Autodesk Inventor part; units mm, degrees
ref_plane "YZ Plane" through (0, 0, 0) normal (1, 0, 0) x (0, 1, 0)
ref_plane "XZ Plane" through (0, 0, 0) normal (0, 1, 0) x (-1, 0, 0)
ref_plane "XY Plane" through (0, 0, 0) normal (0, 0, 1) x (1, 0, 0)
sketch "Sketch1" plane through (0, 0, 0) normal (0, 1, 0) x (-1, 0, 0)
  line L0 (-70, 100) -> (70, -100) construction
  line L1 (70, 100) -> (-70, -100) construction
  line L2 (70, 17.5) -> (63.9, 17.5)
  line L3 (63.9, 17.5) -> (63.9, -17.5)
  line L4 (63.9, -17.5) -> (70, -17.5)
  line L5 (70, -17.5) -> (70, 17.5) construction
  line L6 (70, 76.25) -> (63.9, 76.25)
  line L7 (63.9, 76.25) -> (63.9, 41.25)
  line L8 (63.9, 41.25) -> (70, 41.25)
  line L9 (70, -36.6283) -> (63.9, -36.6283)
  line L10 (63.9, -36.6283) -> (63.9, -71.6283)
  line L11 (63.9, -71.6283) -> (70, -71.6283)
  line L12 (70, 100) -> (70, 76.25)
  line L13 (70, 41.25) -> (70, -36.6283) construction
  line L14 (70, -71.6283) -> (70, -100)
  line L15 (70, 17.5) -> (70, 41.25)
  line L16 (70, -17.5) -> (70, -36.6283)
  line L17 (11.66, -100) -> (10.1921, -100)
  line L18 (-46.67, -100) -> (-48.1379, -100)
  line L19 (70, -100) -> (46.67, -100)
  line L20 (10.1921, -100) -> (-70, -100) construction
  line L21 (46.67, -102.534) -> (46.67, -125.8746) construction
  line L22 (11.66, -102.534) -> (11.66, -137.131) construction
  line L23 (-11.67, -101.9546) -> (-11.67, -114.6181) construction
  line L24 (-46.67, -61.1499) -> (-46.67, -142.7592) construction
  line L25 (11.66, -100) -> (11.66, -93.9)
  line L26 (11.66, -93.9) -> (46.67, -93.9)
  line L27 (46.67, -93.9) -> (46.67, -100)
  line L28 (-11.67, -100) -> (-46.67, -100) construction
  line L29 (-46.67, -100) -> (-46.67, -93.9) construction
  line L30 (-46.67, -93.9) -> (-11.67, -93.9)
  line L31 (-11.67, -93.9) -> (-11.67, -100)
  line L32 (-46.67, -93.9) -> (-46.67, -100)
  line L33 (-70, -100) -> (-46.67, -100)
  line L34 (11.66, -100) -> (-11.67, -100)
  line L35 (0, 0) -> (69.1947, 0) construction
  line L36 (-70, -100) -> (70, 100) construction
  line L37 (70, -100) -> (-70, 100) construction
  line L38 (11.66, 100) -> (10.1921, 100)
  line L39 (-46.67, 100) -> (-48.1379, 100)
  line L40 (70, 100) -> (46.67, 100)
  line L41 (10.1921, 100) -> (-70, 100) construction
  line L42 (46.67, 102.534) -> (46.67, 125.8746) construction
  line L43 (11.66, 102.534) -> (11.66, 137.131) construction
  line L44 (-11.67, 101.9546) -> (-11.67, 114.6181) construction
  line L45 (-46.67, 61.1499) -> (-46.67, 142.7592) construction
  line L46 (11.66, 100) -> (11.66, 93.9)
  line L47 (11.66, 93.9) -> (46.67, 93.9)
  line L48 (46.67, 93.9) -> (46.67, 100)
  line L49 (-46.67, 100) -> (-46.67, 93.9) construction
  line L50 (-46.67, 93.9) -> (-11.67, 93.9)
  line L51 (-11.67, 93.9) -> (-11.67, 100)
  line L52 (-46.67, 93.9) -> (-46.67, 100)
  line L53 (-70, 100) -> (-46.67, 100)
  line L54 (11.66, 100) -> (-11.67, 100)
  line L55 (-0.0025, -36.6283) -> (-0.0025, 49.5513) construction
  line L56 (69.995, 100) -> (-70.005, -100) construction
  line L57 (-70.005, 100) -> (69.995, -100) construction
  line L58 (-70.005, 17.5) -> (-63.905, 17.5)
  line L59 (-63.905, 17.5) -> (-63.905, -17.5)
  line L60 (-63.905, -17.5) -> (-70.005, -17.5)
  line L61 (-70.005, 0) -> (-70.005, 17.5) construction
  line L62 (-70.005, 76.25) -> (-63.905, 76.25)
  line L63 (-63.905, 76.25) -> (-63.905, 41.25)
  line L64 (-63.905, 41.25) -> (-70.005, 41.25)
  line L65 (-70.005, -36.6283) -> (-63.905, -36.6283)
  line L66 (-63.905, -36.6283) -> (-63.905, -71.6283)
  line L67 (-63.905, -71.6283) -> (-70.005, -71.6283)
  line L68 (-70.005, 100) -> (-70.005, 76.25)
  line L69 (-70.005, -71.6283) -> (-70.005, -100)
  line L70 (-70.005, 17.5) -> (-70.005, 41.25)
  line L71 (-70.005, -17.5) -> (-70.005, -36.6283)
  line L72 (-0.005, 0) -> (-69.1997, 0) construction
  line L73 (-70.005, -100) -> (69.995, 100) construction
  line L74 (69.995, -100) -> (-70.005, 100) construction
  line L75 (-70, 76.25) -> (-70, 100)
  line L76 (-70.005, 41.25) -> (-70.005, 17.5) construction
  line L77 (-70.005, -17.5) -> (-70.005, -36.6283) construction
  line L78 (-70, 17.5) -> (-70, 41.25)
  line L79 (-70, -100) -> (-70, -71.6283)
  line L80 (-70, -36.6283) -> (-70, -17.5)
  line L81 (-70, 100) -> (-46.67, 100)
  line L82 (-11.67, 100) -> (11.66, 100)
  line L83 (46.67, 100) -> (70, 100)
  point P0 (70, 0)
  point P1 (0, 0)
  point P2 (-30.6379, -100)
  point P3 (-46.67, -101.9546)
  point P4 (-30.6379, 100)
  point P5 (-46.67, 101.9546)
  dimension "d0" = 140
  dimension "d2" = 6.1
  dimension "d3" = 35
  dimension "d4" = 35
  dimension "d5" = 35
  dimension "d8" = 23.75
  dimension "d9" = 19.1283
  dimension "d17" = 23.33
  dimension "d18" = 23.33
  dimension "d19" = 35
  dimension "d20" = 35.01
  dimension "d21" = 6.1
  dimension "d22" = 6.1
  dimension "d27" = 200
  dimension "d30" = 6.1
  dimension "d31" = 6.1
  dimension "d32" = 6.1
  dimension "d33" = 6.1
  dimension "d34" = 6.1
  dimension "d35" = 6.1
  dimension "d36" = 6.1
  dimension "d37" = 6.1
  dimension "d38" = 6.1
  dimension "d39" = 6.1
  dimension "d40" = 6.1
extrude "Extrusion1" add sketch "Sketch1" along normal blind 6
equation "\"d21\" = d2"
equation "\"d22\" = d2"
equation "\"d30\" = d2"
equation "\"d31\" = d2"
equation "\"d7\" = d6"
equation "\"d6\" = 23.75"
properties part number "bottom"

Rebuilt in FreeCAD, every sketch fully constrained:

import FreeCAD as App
import Part
import Sketcher

V = App.Vector


def add_polygon(sketch, points):
    """Adds a closed chain of lines whose ends are joined by coincident constraints."""
    first, n = sketch.GeometryCount, len(points)
    for a, b in zip(points, points[1:] + points[:1]):
        sketch.addGeometry(Part.LineSegment(App.Vector(*a, 0), App.Vector(*b, 0)), False)
    for i in range(n):
        sketch.addConstraint(Sketcher.Constraint("Coincident", first + i, 2, first + (i + 1) % n, 1))

doc = App.newDocument("Part")
body = doc.addObject("PartDesign::Body", "Body")

# Sketch on XZ plane
sketch1 = doc.addObject("Sketcher::SketchObject", "Sketch")
body.addObject(sketch1)
sketch1.AttachmentSupport = (doc.XZ_Plane, [""])
sketch1.MapMode = "FlatFace"
add_polygon(sketch1, [(-64, 18), (-70, 18), (-70, 41), (-64, 41), (-64, 76), (-70, 76), (-70, 100), (-47, 100), (-47, 94), (-12, 94), (-12, 100), (12, 100), (12, 94), (47, 94), (47, 100), (70, 100), (70, 76), (64, 76), (64, 41), (70, 41), (70, 18), (64, 18), (64, -18), (70, -18), (70, -37), (64, -37), (64, -72), (70, -72), (70, -100), (47, -100), (47, -94), (12, -94), (12, -100), (-12, -100), (-12, -94), (-47, -94), (-47, -100), (-70, -100), (-70, -72), (-64, -72), (-64, -37), (-70, -37), (-70, -18), (-64, -18)])  # lines 0-43
sketch1.addConstraint([
    Sketcher.Constraint("Horizontal", 0),
    Sketcher.Constraint("Vertical", 1),
    Sketcher.Constraint("Horizontal", 2),
    Sketcher.Constraint("Vertical", 3),
    Sketcher.Constraint("Horizontal", 4),
    Sketcher.Constraint("Vertical", 5),
    Sketcher.Constraint("Horizontal", 6),
    Sketcher.Constraint("Vertical", 7),
    Sketcher.Constraint("Horizontal", 8),
    Sketcher.Constraint("Vertical", 9),
    Sketcher.Constraint("Horizontal", 10),
    Sketcher.Constraint("Vertical", 11),
    Sketcher.Constraint("Horizontal", 12),
    Sketcher.Constraint("Vertical", 13),
    Sketcher.Constraint("Horizontal", 14),
    Sketcher.Constraint("Vertical", 15),
    Sketcher.Constraint("Horizontal", 16),
    Sketcher.Constraint("Vertical", 17),
    Sketcher.Constraint("Horizontal", 18),
    Sketcher.Constraint("Vertical", 19),
    Sketcher.Constraint("Horizontal", 20),
    Sketcher.Constraint("Vertical", 21),
    Sketcher.Constraint("Horizontal", 22),
    Sketcher.Constraint("Vertical", 23),
    Sketcher.Constraint("Horizontal", 24),
    Sketcher.Constraint("Vertical", 25),
    Sketcher.Constraint("Horizontal", 26),
    Sketcher.Constraint("Vertical", 27),
    Sketcher.Constraint("Horizontal", 28),
    Sketcher.Constraint("Vertical", 29),
    Sketcher.Constraint("Horizontal", 30),
    Sketcher.Constraint("Vertical", 31),
    Sketcher.Constraint("Horizontal", 32),
    Sketcher.Constraint("Vertical", 33),
    Sketcher.Constraint("Horizontal", 34),
    Sketcher.Constraint("Vertical", 35),
    Sketcher.Constraint("Horizontal", 36),
    Sketcher.Constraint("Vertical", 37),
    Sketcher.Constraint("Horizontal", 38),
    Sketcher.Constraint("Vertical", 39),
    Sketcher.Constraint("Horizontal", 40),
    Sketcher.Constraint("Vertical", 41),
    Sketcher.Constraint("Horizontal", 42),
    Sketcher.Constraint("Vertical", 43),
    Sketcher.Constraint("Symmetric", 5, 2, 27, 2, -1, 1),
    Sketcher.Constraint("Symmetric", 7, 2, 29, 2, -1, 1),
    Sketcher.Constraint("Symmetric", 12, 2, 34, 2, -1, 1),
    Sketcher.Constraint("Symmetric", 14, 2, 36, 2, -1, 1),
    Sketcher.Constraint("Symmetric", 7, 2, 12, 2, -2),
    Sketcher.Constraint("Symmetric", 5, 2, 14, 2, -2),
    Sketcher.Constraint("Symmetric", 19, 2, 22, 2, -1),
    Sketcher.Constraint("Symmetric", 10, 2, 31, 2, -1),
    Sketcher.Constraint("Symmetric", 0, 2, 41, 2, -1),
    Sketcher.Constraint("Horizontal", 6, 2, 9, 2),
    Sketcher.Constraint("Horizontal", 4, 2, 15, 2),
    Sketcher.Constraint("Horizontal", 2, 2, 17, 2),
    Sketcher.Constraint("Horizontal", 0, 2, 19, 2),
    Sketcher.Constraint("Horizontal", 26, 2, 37, 2),
    Sketcher.Constraint("Horizontal", 24, 2, 39, 2),
    Sketcher.Constraint("Vertical", 1, 2, 4, 2),
    Sketcher.Constraint("Vertical", 17, 2, 20, 2),
    Sketcher.Constraint("Vertical", 21, 2, 24, 2),
    Sketcher.Constraint("Vertical", 9, 2, 32, 2),
    Sketcher.Constraint("Vertical", 3, 2, 38, 2),
    Sketcher.Constraint("Vertical", 39, 2, 42, 2),
    Sketcher.Constraint("Equal", 6, 10),
    Sketcher.Constraint("Equal", 4, 18),
    Sketcher.Constraint("Equal", 30, 3),
    Sketcher.Constraint("Equal", 1, 5),
    Sketcher.Constraint("Equal", 42, 7),
    Sketcher.Constraint("Equal", 17, 21),
    Sketcher.Constraint("Equal", 21, 25),
    Sketcher.Constraint("DistanceX", 12, 1, 12, 2, 35.0),
    Sketcher.Constraint("DistanceX", 0, 2, 0, 1, 6.1),
    Sketcher.Constraint("DistanceX", 6, 1, 6, 2, 23.33),
    Sketcher.Constraint("DistanceX", 8, 1, 8, 2, 35.01),
    Sketcher.Constraint("DistanceY", 1, 1, 1, 2, 23.75),
    Sketcher.Constraint("DistanceY", 23, 2, 23, 1, 19.1283),
    Sketcher.Constraint("DistanceX", 16, 2, 16, 1, 6.095),
])
pad1 = doc.addObject("PartDesign::Pad", "Pad")
body.addObject(pad1)
pad1.Profile = sketch1
pad1.Length = 6
pad1.Reversed = True

doc.recompute()
